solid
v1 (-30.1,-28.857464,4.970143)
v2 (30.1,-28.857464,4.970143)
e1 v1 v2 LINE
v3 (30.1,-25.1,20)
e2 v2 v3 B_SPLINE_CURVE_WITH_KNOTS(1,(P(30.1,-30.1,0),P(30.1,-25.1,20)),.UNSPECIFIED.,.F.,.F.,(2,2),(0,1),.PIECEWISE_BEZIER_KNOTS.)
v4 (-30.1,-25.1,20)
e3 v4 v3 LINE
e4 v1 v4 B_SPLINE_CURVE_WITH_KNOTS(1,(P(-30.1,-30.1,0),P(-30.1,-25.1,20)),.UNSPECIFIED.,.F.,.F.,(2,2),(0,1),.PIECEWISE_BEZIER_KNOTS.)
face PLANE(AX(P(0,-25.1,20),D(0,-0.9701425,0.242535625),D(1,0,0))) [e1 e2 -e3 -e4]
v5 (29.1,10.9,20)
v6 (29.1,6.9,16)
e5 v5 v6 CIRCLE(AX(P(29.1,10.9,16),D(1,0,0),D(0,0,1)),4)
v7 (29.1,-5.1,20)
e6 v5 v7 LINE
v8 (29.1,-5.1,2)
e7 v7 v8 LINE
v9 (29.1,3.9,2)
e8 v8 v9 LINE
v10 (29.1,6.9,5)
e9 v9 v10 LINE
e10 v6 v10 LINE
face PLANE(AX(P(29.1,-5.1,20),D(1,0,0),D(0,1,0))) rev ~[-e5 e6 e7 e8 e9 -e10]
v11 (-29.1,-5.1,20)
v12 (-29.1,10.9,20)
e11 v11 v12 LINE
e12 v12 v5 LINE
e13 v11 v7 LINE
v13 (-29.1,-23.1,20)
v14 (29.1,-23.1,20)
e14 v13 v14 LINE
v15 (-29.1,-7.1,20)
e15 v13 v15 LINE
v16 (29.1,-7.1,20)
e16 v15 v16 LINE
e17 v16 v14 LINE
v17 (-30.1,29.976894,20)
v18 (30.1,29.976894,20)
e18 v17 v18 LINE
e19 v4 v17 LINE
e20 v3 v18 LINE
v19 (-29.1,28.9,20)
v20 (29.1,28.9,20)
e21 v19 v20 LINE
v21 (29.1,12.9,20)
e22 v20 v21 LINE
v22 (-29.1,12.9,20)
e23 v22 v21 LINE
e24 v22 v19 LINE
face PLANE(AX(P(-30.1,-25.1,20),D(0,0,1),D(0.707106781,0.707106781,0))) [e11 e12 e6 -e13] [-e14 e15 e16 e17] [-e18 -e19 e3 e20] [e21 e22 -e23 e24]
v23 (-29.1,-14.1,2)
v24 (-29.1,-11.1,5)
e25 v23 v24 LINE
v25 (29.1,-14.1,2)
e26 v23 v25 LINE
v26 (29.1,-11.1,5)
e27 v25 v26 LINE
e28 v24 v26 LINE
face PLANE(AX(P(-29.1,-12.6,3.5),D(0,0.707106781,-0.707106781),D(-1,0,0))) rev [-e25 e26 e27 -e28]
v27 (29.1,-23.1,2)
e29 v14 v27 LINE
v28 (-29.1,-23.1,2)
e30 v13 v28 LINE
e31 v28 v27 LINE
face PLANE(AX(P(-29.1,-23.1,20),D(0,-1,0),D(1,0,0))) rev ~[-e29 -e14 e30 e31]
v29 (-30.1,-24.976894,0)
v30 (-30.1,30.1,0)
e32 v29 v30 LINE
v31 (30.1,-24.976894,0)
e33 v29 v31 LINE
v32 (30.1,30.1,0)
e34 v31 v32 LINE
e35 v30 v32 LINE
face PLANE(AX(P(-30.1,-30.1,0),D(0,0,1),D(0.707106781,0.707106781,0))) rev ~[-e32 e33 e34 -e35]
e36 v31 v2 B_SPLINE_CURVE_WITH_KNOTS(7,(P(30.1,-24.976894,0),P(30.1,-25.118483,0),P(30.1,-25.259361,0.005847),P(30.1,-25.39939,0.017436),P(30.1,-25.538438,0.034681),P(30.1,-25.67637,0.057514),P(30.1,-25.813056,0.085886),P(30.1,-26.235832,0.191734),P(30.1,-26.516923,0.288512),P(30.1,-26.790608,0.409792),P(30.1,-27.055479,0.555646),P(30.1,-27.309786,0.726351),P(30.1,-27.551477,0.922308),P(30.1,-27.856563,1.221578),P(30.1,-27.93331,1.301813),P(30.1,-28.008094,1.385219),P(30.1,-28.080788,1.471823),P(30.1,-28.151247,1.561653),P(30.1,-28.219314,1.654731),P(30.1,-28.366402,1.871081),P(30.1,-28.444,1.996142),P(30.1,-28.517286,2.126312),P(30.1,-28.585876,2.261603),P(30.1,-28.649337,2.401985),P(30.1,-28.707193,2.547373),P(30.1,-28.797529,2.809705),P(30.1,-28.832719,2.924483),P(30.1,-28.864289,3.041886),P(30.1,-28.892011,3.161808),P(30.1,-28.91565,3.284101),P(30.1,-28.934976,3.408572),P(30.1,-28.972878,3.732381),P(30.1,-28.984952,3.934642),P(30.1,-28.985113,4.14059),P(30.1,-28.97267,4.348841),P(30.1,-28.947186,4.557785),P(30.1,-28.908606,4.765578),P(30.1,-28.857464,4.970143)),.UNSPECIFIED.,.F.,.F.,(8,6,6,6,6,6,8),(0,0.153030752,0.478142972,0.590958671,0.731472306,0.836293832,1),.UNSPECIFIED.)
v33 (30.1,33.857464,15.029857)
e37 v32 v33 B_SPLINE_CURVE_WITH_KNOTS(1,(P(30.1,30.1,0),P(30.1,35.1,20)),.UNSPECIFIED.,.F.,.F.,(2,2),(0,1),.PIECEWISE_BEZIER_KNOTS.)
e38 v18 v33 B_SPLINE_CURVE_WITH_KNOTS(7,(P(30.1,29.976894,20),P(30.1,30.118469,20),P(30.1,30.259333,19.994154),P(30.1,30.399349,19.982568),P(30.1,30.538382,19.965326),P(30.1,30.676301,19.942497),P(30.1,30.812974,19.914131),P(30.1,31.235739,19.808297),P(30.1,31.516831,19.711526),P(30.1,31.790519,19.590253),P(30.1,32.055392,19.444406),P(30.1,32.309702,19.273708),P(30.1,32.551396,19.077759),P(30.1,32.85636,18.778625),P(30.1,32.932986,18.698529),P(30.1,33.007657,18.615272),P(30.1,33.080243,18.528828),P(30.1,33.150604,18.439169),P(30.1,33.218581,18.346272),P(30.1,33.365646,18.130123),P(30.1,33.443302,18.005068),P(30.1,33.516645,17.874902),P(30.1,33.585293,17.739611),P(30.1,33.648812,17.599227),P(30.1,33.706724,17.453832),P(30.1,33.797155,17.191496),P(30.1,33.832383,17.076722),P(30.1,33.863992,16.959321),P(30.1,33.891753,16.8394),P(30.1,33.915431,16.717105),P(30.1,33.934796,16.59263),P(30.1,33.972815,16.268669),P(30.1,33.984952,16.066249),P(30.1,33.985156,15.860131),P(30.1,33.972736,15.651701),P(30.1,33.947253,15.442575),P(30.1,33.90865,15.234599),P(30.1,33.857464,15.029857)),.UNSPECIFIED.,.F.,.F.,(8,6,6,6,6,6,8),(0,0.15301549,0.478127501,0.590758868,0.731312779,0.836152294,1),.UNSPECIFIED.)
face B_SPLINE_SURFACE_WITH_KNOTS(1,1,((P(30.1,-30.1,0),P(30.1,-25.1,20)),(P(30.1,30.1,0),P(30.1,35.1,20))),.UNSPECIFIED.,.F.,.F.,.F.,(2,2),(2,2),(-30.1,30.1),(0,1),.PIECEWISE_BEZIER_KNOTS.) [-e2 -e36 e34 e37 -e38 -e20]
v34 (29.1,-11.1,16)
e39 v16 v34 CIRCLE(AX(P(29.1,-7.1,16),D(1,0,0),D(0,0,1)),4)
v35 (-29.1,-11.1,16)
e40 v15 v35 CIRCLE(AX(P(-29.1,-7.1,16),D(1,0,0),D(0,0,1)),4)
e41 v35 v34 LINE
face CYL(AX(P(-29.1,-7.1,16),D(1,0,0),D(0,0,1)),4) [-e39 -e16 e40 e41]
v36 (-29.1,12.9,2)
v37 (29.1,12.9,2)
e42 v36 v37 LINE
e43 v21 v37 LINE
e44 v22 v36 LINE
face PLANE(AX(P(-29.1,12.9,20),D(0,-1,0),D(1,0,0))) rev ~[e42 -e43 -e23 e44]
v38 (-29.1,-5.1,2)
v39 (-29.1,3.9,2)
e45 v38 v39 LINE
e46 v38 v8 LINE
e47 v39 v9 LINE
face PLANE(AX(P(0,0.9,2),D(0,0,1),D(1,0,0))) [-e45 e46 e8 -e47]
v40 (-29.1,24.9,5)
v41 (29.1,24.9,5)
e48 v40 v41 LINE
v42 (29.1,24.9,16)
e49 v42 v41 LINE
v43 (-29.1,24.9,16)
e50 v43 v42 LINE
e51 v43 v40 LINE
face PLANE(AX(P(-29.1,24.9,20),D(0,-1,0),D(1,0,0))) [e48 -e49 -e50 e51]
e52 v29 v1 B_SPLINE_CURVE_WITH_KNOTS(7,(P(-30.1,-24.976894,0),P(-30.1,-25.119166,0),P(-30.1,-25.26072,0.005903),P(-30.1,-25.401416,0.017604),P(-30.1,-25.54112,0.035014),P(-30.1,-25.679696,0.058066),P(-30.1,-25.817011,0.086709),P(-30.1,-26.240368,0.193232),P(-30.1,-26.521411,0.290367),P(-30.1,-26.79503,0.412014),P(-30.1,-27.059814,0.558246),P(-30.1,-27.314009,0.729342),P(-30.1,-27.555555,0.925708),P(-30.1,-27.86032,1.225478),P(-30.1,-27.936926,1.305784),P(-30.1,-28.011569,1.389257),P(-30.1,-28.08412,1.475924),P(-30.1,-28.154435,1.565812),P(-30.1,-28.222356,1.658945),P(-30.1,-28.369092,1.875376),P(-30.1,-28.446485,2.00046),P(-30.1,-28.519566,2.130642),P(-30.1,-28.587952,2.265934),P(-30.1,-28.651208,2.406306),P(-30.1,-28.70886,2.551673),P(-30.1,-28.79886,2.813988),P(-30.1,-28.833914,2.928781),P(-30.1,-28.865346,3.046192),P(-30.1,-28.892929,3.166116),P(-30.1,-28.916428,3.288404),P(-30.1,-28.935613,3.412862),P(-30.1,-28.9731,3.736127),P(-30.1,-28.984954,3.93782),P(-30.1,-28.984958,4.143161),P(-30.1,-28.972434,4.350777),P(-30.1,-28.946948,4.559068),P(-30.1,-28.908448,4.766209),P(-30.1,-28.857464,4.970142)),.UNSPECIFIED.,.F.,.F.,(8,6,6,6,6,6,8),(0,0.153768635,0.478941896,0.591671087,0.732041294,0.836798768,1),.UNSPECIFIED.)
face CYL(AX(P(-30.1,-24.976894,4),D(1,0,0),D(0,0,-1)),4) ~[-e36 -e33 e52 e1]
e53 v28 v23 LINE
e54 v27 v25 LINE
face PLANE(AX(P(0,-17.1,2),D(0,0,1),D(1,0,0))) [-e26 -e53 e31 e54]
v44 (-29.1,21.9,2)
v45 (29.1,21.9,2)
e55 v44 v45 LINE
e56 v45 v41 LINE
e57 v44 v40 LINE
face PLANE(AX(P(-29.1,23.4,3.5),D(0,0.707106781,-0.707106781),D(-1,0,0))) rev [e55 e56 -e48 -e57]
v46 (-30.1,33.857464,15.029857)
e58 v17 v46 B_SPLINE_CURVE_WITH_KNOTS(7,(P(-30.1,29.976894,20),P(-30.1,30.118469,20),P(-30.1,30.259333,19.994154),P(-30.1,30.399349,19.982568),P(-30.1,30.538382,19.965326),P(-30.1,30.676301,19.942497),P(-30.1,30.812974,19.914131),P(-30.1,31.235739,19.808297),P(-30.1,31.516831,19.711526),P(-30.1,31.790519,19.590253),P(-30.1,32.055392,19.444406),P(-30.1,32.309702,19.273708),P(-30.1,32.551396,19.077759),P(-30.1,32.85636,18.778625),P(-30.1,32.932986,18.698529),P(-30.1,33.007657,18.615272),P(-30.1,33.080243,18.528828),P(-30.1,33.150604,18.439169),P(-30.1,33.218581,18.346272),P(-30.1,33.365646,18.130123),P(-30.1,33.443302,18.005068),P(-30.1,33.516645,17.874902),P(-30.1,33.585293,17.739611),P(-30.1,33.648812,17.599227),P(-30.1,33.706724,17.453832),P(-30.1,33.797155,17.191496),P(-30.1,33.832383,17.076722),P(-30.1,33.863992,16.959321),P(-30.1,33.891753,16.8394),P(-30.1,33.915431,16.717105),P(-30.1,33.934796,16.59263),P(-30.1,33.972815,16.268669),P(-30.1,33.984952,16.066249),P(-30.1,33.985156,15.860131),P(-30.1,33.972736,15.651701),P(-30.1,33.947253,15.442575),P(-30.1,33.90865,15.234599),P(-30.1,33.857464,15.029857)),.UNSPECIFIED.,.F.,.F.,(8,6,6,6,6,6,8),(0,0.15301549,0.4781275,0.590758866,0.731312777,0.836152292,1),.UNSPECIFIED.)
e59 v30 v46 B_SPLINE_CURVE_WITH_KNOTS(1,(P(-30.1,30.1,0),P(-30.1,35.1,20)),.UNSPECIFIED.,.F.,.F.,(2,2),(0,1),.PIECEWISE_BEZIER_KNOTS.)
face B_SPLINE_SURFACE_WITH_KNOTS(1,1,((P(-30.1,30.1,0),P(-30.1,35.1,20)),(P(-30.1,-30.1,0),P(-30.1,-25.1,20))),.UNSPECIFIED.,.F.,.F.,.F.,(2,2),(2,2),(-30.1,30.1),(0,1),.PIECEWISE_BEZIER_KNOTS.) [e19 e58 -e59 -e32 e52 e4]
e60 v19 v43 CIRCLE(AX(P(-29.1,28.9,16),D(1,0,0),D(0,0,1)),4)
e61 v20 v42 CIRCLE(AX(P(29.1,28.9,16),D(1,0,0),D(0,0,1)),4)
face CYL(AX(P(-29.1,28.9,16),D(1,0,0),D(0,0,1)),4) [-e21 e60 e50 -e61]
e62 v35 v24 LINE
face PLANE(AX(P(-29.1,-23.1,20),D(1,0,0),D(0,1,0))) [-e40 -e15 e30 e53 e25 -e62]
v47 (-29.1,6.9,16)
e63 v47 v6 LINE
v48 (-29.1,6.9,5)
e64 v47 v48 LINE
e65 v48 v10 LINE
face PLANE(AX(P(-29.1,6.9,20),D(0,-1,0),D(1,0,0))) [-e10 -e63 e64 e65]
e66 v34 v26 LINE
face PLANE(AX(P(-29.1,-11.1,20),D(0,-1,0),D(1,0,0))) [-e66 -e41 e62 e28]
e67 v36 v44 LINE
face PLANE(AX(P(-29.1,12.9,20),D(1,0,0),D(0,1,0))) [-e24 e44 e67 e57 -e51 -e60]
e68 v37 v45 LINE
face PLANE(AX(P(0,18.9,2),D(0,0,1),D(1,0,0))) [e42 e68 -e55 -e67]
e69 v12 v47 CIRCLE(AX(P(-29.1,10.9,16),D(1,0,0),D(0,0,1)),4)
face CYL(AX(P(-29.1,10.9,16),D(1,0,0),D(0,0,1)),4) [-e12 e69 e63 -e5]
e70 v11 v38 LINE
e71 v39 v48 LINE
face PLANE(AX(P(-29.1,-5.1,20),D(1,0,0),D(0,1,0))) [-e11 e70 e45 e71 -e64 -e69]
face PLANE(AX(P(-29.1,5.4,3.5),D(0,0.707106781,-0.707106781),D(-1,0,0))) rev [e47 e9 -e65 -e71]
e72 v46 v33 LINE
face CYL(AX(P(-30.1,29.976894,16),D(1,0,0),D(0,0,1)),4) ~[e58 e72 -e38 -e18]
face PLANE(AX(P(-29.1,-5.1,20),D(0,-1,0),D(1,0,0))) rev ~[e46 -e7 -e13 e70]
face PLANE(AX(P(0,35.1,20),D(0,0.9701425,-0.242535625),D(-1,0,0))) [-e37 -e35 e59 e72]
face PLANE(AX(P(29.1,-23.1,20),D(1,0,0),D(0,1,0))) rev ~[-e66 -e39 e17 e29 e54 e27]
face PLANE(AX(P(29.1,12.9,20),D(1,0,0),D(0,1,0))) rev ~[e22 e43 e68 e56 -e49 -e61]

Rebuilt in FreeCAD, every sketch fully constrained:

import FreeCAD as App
import Part
import Sketcher
from FreeCAD import Vector
Q = App.Units.Quantity


def edges_at(feature, points):
    """Names of the edges that pass closest to the given points."""
    edges = feature.Shape.Edges
    near = lambda p: min(range(len(edges)), key=lambda i: edges[i].distToShape(Part.Vertex(*p))[0])
    return sorted({f"Edge{near(p) + 1}" for p in points})

doc = App.newDocument("Part")
body = doc.addObject("PartDesign::Body", "Body")

sketch1 = doc.addObject("Sketcher::SketchObject", "Sketch")
body.addObject(sketch1)
sketch1.AttachmentSupport = (doc.XY_Plane, [""])
sketch1.MapMode = "FlatFace"
sketch1.addGeometry([
    Part.LineSegment(Vector(-30.1, 30.1, 0), Vector(-30.1, -30.1, 0)),
    Part.LineSegment(Vector(-30.1, -30.1, 0), Vector(30.1, -30.1, 0)),
    Part.LineSegment(Vector(30.1, -30.1, 0), Vector(30.1, 30.1, 0)),
    Part.LineSegment(Vector(30.1, 30.1, 0), Vector(-30.1, 30.1, 0)),
], False)
sketch1.addConstraint([
    Sketcher.Constraint("Coincident", 0, 2, 1, 1),
    Sketcher.Constraint("Coincident", 1, 2, 2, 1),
    Sketcher.Constraint("Coincident", 2, 2, 3, 1),
    Sketcher.Constraint("Coincident", 3, 2, 0, 1),
    Sketcher.Constraint("Vertical", 0),
    Sketcher.Constraint("Horizontal", 1),
    Sketcher.Constraint("Vertical", 2),
    Sketcher.Constraint("Horizontal", 3),
    Sketcher.Constraint("Symmetric", 0, 2, 2, 2, -1, 1),
    Sketcher.Constraint("Equal", 3, 0),
    Sketcher.Constraint("DistanceX", 1, 1, 1, 2, Q("60.2 mm")),
])

sketch2 = doc.addObject("Sketcher::SketchObject", "Sketch001")
body.addObject(sketch2)
sketch2.AttachmentSupport = (doc.XY_Plane, [""])
sketch2.MapMode = "FlatFace"
sketch2.AttachmentOffset = App.Placement(Vector(0, 0, 20), App.Rotation())
sketch2.addGeometry([
    Part.LineSegment(Vector(-30.1, 35.1, 0), Vector(-30.1, -25.1, 0)),
    Part.LineSegment(Vector(-30.1, -25.1, 0), Vector(30.1, -25.1, 0)),
    Part.LineSegment(Vector(30.1, -25.1, 0), Vector(30.1, 35.1, 0)),
    Part.LineSegment(Vector(30.1, 35.1, 0), Vector(-30.1, 35.1, 0)),
], False)
sketch2.addConstraint([
    Sketcher.Constraint("Coincident", 0, 2, 1, 1),
    Sketcher.Constraint("Coincident", 1, 2, 2, 1),
    Sketcher.Constraint("Coincident", 2, 2, 3, 1),
    Sketcher.Constraint("Coincident", 3, 2, 0, 1),
    Sketcher.Constraint("Vertical", 0),
    Sketcher.Constraint("Horizontal", 1),
    Sketcher.Constraint("Vertical", 2),
    Sketcher.Constraint("Horizontal", 3),
    Sketcher.Constraint("Equal", 3, 0),
    Sketcher.Constraint("DistanceX", 1, 1, 1, 2, Q("60.2 mm")),
    Sketcher.Constraint("DistanceX", 0, 2, -1, 1, Q("30.1 mm")),
    Sketcher.Constraint("DistanceY", 0, 2, -1, 1, Q("25.1 mm")),
])

additiveloft = doc.addObject("PartDesign::AdditiveLoft", "AdditiveLoft")
body.addObject(additiveloft)
additiveloft.Profile = sketch1
additiveloft.Sections = [sketch2]

sketch3 = doc.addObject("Sketcher::SketchObject", "Sketch002")
body.addObject(sketch3)
sketch3.AttachmentSupport = (doc.XY_Plane, [""])
sketch3.MapMode = "FlatFace"
sketch3.AttachmentOffset = App.Placement(Vector(0, 0, 20), App.Rotation())
sketch3.addGeometry([
    Part.LineSegment(Vector(-29.1, -11.1, 0), Vector(-29.1, -23.1, 0)),
    Part.LineSegment(Vector(-29.1, -23.1, 0), Vector(29.1, -23.1, 0)),
    Part.LineSegment(Vector(29.1, -23.1, 0), Vector(29.1, -11.1, 0)),
    Part.LineSegment(Vector(29.1, -11.1, 0), Vector(-29.1, -11.1, 0)),
    Part.LineSegment(Vector(-29.1, 6.9, 0), Vector(-29.1, -5.1, 0)),
    Part.LineSegment(Vector(-29.1, -5.1, 0), Vector(29.1, -5.1, 0)),
    Part.LineSegment(Vector(29.1, -5.1, 0), Vector(29.1, 6.9, 0)),
    Part.LineSegment(Vector(29.1, 6.9, 0), Vector(-29.1, 6.9, 0)),
    Part.LineSegment(Vector(-29.1, 24.9, 0), Vector(-29.1, 12.9, 0)),
    Part.LineSegment(Vector(-29.1, 12.9, 0), Vector(29.1, 12.9, 0)),
    Part.LineSegment(Vector(29.1, 12.9, 0), Vector(29.1, 24.9, 0)),
    Part.LineSegment(Vector(29.1, 24.9, 0), Vector(-29.1, 24.9, 0)),
], False)
sketch3.addConstraint([
    Sketcher.Constraint("Coincident", 0, 2, 1, 1),
    Sketcher.Constraint("Coincident", 1, 2, 2, 1),
    Sketcher.Constraint("Coincident", 2, 2, 3, 1),
    Sketcher.Constraint("Coincident", 3, 2, 0, 1),
    Sketcher.Constraint("Coincident", 4, 2, 5, 1),
    Sketcher.Constraint("Coincident", 5, 2, 6, 1),
    Sketcher.Constraint("Coincident", 6, 2, 7, 1),
    Sketcher.Constraint("Coincident", 7, 2, 4, 1),
    Sketcher.Constraint("Coincident", 8, 2, 9, 1),
    Sketcher.Constraint("Coincident", 9, 2, 10, 1),
    Sketcher.Constraint("Coincident", 10, 2, 11, 1),
    Sketcher.Constraint("Coincident", 11, 2, 8, 1),
    Sketcher.Constraint("Vertical", 0),
    Sketcher.Constraint("Horizontal", 1),
    Sketcher.Constraint("Vertical", 2),
    Sketcher.Constraint("Horizontal", 3),
    Sketcher.Constraint("Vertical", 4),
    Sketcher.Constraint("Horizontal", 5),
    Sketcher.Constraint("Vertical", 6),
    Sketcher.Constraint("Horizontal", 7),
    Sketcher.Constraint("Vertical", 8),
    Sketcher.Constraint("Horizontal", 9),
    Sketcher.Constraint("Vertical", 10),
    Sketcher.Constraint("Horizontal", 11),
    Sketcher.Constraint("Vertical", 3, 2, 4, 2),
    Sketcher.Constraint("Vertical", 2, 2, 5, 2),
    Sketcher.Constraint("Vertical", 7, 2, 8, 2),
    Sketcher.Constraint("Vertical", 6, 2, 9, 2),
    Sketcher.Constraint("Equal", 2, 4),
    Sketcher.Constraint("Equal", 6, 8),
    Sketcher.Constraint("DistanceY", 0, 2, 0, 1, Q("12 mm")),
    Sketcher.Constraint("DistanceX", 1, 1, 1, 2, Q("58.2 mm")),
    Sketcher.Constraint("DistanceY", 3, 2, 4, 2, Q("6 mm")),
    Sketcher.Constraint("DistanceY", 7, 2, 8, 2, Q("6 mm")),
    Sketcher.Constraint("DistanceX", 0, 2, -1, 1, Q("29.1 mm")),
    Sketcher.Constraint("DistanceY", 0, 2, -1, 1, Q("23.1 mm")),
])
pocket1 = doc.addObject("PartDesign::Pocket", "Pocket")
body.addObject(pocket1)
pocket1.Profile = sketch3
pocket1.Length = 18
doc.recompute()

fillet = doc.addObject("PartDesign::Fillet", "Fillet")
body.addObject(fillet)
fillet.Base = (pocket1, edges_at(pocket1, [
    (0, -30.1, 0),
    (0, 35.1, 20),
    (0, -11.1, 20),
    (0, 6.9, 20),
    (0, 24.9, 20),
]))
fillet.Radius = 4
doc.recompute()

chamfer = doc.addObject("PartDesign::Chamfer", "Chamfer")
body.addObject(chamfer)
chamfer.Base = (fillet, edges_at(fillet, [(0, 24.9, 2), (0, 6.9, 2), (0, -11.1, 2)]))
chamfer.Size = 3

doc.recompute()
